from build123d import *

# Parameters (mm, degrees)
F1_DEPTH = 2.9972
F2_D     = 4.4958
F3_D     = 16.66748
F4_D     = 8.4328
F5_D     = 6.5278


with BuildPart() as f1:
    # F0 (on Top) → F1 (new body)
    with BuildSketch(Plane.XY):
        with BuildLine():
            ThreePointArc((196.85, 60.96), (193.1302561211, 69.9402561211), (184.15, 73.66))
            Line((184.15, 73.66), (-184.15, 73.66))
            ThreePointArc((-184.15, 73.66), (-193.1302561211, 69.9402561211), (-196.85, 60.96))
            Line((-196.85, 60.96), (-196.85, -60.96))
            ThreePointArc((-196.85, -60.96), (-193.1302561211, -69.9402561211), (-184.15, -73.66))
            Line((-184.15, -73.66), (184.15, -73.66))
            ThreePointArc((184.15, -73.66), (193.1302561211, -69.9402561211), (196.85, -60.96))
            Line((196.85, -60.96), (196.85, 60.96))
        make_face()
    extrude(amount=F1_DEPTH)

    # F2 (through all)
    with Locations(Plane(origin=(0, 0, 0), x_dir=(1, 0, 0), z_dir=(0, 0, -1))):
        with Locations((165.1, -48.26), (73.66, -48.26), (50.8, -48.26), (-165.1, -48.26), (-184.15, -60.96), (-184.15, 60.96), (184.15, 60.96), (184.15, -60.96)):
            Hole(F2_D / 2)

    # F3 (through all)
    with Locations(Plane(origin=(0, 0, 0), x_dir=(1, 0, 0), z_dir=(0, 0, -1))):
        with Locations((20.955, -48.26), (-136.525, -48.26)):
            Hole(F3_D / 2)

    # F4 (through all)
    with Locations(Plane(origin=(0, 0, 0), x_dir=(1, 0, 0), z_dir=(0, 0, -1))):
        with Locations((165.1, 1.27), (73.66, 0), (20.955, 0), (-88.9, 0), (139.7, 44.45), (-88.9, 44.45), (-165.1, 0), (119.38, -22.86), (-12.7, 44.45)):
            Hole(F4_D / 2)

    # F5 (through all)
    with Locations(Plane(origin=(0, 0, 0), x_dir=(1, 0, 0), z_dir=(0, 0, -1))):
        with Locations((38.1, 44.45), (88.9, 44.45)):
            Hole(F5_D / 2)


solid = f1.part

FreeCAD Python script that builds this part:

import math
import FreeCAD as App
import Part
import Sketcher
Q = App.Units.Quantity

doc = App.newDocument("Part")
body = doc.addObject("PartDesign::Body", "Body")

sketch1 = body.newObject("Sketcher::SketchObject", "Sketch")
sketch1.AttachmentSupport = (doc.getObject("XY_Plane"), [""])
sketch1.MapMode = "FlatFace"
sketch1.addGeometry([
    Part.ArcOfCircle(Part.Circle(App.Vector(184, 61, 0), App.Vector(0, 0, 1), 13), math.radians(0), math.radians(90)),
    Part.LineSegment(App.Vector(184, 74, 0), App.Vector(-184, 74, 0)),
    Part.ArcOfCircle(Part.Circle(App.Vector(-184, 61, 0), App.Vector(0, 0, 1), 13), math.radians(90), math.radians(180)),
    Part.LineSegment(App.Vector(-197, 61, 0), App.Vector(-197, -61, 0)),
    Part.ArcOfCircle(Part.Circle(App.Vector(-184, -61, 0), App.Vector(0, 0, 1), 13), math.radians(180), math.radians(270)),
    Part.LineSegment(App.Vector(-184, -74, 0), App.Vector(184, -74, 0)),
    Part.ArcOfCircle(Part.Circle(App.Vector(184, -61, 0), App.Vector(0, 0, 1), 13), math.radians(-90), math.radians(0)),
    Part.LineSegment(App.Vector(197, -61, 0), App.Vector(197, 61, 0)),
], False)
sketch1.addConstraint([
    Sketcher.Constraint("Tangent", 0, 2, 1, 1),
    Sketcher.Constraint("Tangent", 1, 2, 2, 1),
    Sketcher.Constraint("Tangent", 2, 2, 3, 1),
    Sketcher.Constraint("Tangent", 3, 2, 4, 1),
    Sketcher.Constraint("Tangent", 4, 2, 5, 1),
    Sketcher.Constraint("Tangent", 5, 2, 6, 1),
    Sketcher.Constraint("Tangent", 6, 2, 7, 1),
    Sketcher.Constraint("Tangent", 7, 2, 0, 1),
    Sketcher.Constraint("Horizontal", 1),
    Sketcher.Constraint("Vertical", 3),
    Sketcher.Constraint("Horizontal", 5),
    Sketcher.Constraint("Vertical", 7),
    Sketcher.Constraint("Equal", 0, 2),
    Sketcher.Constraint("Equal", 2, 4),
    Sketcher.Constraint("Equal", 4, 6),
    Sketcher.Constraint("Symmetric", 0, 3, 4, 3, -1, 1),
    Sketcher.Constraint("Radius", 0, Q("0.5 in")),
    Sketcher.Constraint("DistanceX", 1, 2, 1, 1, Q("14.5 in")),
    Sketcher.Constraint("DistanceY", 3, 2, 3, 1, Q("4.8 in")),
])
pad1 = body.newObject("PartDesign::Pad", "Pad")
pad1.Profile = sketch1
pad1.Length = Q("0.118 in")

sketch2 = body.newObject("Sketcher::SketchObject", "Sketch001")
sketch2.AttachmentSupport = (doc.getObject("XY_Plane"), [""])
sketch2.MapMode = "FlatFace"
sketch2.addGeometry([
    Part.Circle(App.Vector(165.1, 48.3, 0), App.Vector(0, 0, 1), 2.2),
    Part.Circle(App.Vector(73.7, 48.3, 0), App.Vector(0, 0, 1), 2.2),
    Part.Circle(App.Vector(50.8, 48.3, 0), App.Vector(0, 0, 1), 2.2),
    Part.Circle(App.Vector(-165.1, 48.3, 0), App.Vector(0, 0, 1), 2.2),
    Part.Circle(App.Vector(-184.2, 61, 0), App.Vector(0, 0, 1), 2.2),
    Part.Circle(App.Vector(-184.2, -61, 0), App.Vector(0, 0, 1), 2.2),
    Part.Circle(App.Vector(184.2, -61, 0), App.Vector(0, 0, 1), 2.2),
    Part.Circle(App.Vector(184.2, 61, 0), App.Vector(0, 0, 1), 2.2),
], False)
sketch2.addConstraint([
    Sketcher.Constraint("Equal", 0, 1),
    Sketcher.Constraint("Equal", 1, 2),
    Sketcher.Constraint("Equal", 2, 3),
    Sketcher.Constraint("Equal", 3, 4),
    Sketcher.Constraint("Equal", 4, 5),
    Sketcher.Constraint("Equal", 5, 6),
    Sketcher.Constraint("Equal", 6, 7),
    Sketcher.Constraint("Symmetric", 4, 3, 6, 3, -1, 1),
    Sketcher.Constraint("Symmetric", 5, 3, 7, 3, -1, 1),
    Sketcher.Constraint("Symmetric", 0, 3, 3, 3, -2),
    Sketcher.Constraint("Symmetric", 5, 3, 6, 3, -2),
    Sketcher.Constraint("Horizontal", 0, 3, 1, 3),
    Sketcher.Constraint("Horizontal", 1, 3, 2, 3),
    Sketcher.Constraint("Diameter", 0, Q("0.177 in")),
    Sketcher.Constraint("DistanceX", -1, 1, 2, 3, Q("2 in")),
    Sketcher.Constraint("DistanceX", 3, 3, 0, 3, Q("13 in")),
    Sketcher.Constraint("DistanceY", -1, 1, 0, 3, Q("1.9 in")),
    Sketcher.Constraint("DistanceX", -1, 1, 1, 3, Q("2.9 in")),
    Sketcher.Constraint("DistanceY", -1, 1, 4, 3, Q("2.4 in")),
    Sketcher.Constraint("DistanceX", 5, 3, 6, 3, Q("14.5 in")),
])
doc.recompute()
hole = body.newObject("PartDesign::Hole", "Hole")
hole.Profile = sketch2
hole.ThreadType = "None"
hole.Diameter = Q("0.177 in")
hole.DepthType = "ThroughAll"
hole.Reversed = True

sketch3 = body.newObject("Sketcher::SketchObject", "Sketch002")
sketch3.AttachmentSupport = (doc.getObject("XY_Plane"), [""])
sketch3.MapMode = "FlatFace"
sketch3.addGeometry([
    Part.Circle(App.Vector(21, 48, 0), App.Vector(0, 0, 1), 8),
    Part.Circle(App.Vector(-137, 48, 0), App.Vector(0, 0, 1), 8),
], False)
sketch3.addConstraint([
    Sketcher.Constraint("Equal", 0, 1),
    Sketcher.Constraint("Horizontal", 0, 3, 1, 3),
    Sketcher.Constraint("Diameter", 0, Q("0.6562 in")),
    Sketcher.Constraint("DistanceY", -1, 1, 0, 3, Q("1.9 in")),
    Sketcher.Constraint("DistanceX", 1, 3, 0, 3, Q("6.2 in")),
    Sketcher.Constraint("DistanceX", -1, 1, 0, 3, Q("0.825 in")),
])
doc.recompute()
hole2 = body.newObject("PartDesign::Hole", "Hole001")
hole2.Profile = sketch3
hole2.ThreadType = "None"
hole2.Diameter = Q("0.6562 in")
hole2.DepthType = "ThroughAll"
hole2.Reversed = True

sketch4 = body.newObject("Sketcher::SketchObject", "Sketch003")
sketch4.AttachmentSupport = (doc.getObject("XY_Plane"), [""])
sketch4.MapMode = "FlatFace"
sketch4.addGeometry([
    Part.Circle(App.Vector(165.1, -1.3, 0), App.Vector(0, 0, 1), 4.2),
    Part.Circle(App.Vector(73.7, 0, 0), App.Vector(0, 0, 1), 4.2),
    Part.Circle(App.Vector(21, 0, 0), App.Vector(0, 0, 1), 4.2),
    Part.Circle(App.Vector(-88.9, 0, 0), App.Vector(0, 0, 1), 4.2),
    Part.Circle(App.Vector(139.7, -44.5, 0), App.Vector(0, 0, 1), 4.2),
    Part.Circle(App.Vector(-88.9, -44.5, 0), App.Vector(0, 0, 1), 4.2),
    Part.Circle(App.Vector(-165.1, 0, 0), App.Vector(0, 0, 1), 4.2),
    Part.Circle(App.Vector(119.4, 22.9, 0), App.Vector(0, 0, 1), 4.2),
    Part.Circle(App.Vector(-12.7, -44.5, 0), App.Vector(0, 0, 1), 4.2),
], False)
sketch4.addConstraint([
    Sketcher.Constraint("Equal", 0, 1),
    Sketcher.Constraint("Equal", 1, 2),
    Sketcher.Constraint("Equal", 2, 3),
    Sketcher.Constraint("Equal", 3, 4),
    Sketcher.Constraint("Equal", 4, 5),
    Sketcher.Constraint("Equal", 5, 6),
    Sketcher.Constraint("Equal", 6, 7),
    Sketcher.Constraint("Equal", 7, 8),
    Sketcher.Constraint("PointOnObject", 1, 3, -1),
    Sketcher.Constraint("PointOnObject", 2, 3, -1),
    Sketcher.Constraint("PointOnObject", 3, 3, -1),
    Sketcher.Constraint("PointOnObject", 6, 3, -1),
    Sketcher.Constraint("Horizontal", 4, 3, 5, 3),
    Sketcher.Constraint("Horizontal", 5, 3, 8, 3),
    Sketcher.Constraint("Vertical", 3, 3, 5, 3),
    Sketcher.Constraint("Diameter", 0, Q("0.332 in")),
    Sketcher.Constraint("DistanceX", 3, 3, 0, 3, Q("10 in")),
    Sketcher.Constraint("DistanceX", 4, 3, 0, 3, Q("1 in")),
    Sketcher.Constraint("DistanceX", 6, 3, 3, 3, Q("3 in")),
    Sketcher.Constraint("DistanceX", 5, 3, 8, 3, Q("3 in")),
    Sketcher.Constraint("DistanceX", -1, 1, 0, 3, Q("6.5 in")),
    Sketcher.Constraint("DistanceX", -1, 1, 1, 3, Q("2.9 in")),
    Sketcher.Constraint("DistanceX", -1, 1, 7, 3, Q("4.7 in")),
    Sketcher.Constraint("DistanceY", -1, 1, 7, 3, Q("0.9 in")),
    Sketcher.Constraint("DistanceY", 4, 3, 0, 3, Q("1.7 in")),
    Sketcher.Constraint("DistanceY", 0, 3, -1, 1, Q("0.05 in")),
    Sketcher.Constraint("DistanceX", -1, 1, 2, 3, Q("0.825 in")),
])
doc.recompute()
hole3 = body.newObject("PartDesign::Hole", "Hole002")
hole3.Profile = sketch4
hole3.ThreadType = "None"
hole3.Diameter = Q("0.332 in")
hole3.DepthType = "ThroughAll"
hole3.Reversed = True

sketch5 = body.newObject("Sketcher::SketchObject", "Sketch004")
sketch5.AttachmentSupport = (doc.getObject("XY_Plane"), [""])
sketch5.MapMode = "FlatFace"
sketch5.addGeometry([
    Part.Circle(App.Vector(38.1, -44.5, 0), App.Vector(0, 0, 1), 3.3),
    Part.Circle(App.Vector(88.9, -44.5, 0), App.Vector(0, 0, 1), 3.3),
], False)
sketch5.addConstraint([
    Sketcher.Constraint("Equal", 0, 1),
    Sketcher.Constraint("Horizontal", 0, 3, 1, 3),
    Sketcher.Constraint("Diameter", 0, Q("0.257 in")),
    Sketcher.Constraint("DistanceX", 0, 3, 1, 3, Q("2 in")),
    Sketcher.Constraint("DistanceX", -1, 1, 0, 3, Q("1.5 in")),
    Sketcher.Constraint("DistanceY", 0, 3, -1, 1, Q("1.75 in")),
])
doc.recompute()
hole4 = body.newObject("PartDesign::Hole", "Hole003")
hole4.Profile = sketch5
hole4.ThreadType = "None"
hole4.Diameter = Q("0.257 in")
hole4.DepthType = "ThroughAll"
hole4.Reversed = True

doc.recompute()
